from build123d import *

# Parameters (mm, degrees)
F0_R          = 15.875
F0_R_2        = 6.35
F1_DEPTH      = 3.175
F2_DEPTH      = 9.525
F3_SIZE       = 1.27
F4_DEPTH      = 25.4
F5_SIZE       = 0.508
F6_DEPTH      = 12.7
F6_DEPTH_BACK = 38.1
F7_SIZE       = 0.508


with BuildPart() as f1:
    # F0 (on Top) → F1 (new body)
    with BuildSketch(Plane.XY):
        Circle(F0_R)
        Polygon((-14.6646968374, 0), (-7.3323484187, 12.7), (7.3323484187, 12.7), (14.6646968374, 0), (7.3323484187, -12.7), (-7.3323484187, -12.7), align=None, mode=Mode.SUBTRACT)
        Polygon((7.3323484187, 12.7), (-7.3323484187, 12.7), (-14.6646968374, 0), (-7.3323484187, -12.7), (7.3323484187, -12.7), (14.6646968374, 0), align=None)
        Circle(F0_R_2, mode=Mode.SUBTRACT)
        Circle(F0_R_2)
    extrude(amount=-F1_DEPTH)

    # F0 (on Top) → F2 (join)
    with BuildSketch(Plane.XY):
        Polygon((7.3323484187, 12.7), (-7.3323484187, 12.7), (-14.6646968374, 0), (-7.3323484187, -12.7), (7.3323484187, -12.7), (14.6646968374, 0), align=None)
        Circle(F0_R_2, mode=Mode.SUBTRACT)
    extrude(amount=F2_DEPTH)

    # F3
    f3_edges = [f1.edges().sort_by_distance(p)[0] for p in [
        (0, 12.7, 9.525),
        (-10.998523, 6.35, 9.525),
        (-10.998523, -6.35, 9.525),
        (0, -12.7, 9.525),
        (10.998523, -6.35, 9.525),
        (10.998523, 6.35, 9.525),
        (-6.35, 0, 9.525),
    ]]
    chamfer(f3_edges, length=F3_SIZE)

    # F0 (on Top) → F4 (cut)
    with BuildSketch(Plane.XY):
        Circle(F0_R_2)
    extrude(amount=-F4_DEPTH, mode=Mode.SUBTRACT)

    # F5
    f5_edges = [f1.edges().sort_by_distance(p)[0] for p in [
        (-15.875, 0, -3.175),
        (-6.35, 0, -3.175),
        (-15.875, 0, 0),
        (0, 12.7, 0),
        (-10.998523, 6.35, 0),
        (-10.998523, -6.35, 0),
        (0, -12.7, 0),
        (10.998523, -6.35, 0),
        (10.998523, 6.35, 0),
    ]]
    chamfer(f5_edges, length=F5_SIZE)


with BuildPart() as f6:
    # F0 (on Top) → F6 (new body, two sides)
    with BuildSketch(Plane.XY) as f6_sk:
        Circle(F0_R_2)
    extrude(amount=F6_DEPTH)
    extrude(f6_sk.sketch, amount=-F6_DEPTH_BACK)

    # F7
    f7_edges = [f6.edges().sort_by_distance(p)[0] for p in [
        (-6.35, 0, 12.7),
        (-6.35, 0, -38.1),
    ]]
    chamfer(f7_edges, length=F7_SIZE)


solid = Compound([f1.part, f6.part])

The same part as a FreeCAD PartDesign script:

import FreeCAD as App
import Part
import Sketcher
Q = App.Units.Quantity


def edges_at(feature, points):
    """Names of the edges that pass closest to the given points."""
    edges = feature.Shape.Edges
    near = lambda p: min(range(len(edges)), key=lambda i: edges[i].distToShape(Part.Vertex(*p))[0])
    return sorted({f"Edge{near(p) + 1}" for p in points})

doc = App.newDocument("Part")
body = doc.addObject("PartDesign::Body", "Body")

sketch1 = body.newObject("Sketcher::SketchObject", "Sketch")
sketch1.AttachmentSupport = (doc.getObject("XY_Plane"), [""])
sketch1.MapMode = "FlatFace"
sketch1.addGeometry(Part.Circle(App.Vector(0, 0, 0), App.Vector(0, 0, 1), 16), False)
sketch1.addConstraint([
    Sketcher.Constraint("Coincident", 0, 3, -1, 1),
    Sketcher.Constraint("Diameter", 0, Q("1.25 in")),
])
pad1 = body.newObject("PartDesign::Pad", "Pad")
pad1.Profile = sketch1
pad1.Length = Q("0.125 in")
pad1.Reversed = True

sketch2 = body.newObject("Sketcher::SketchObject", "Sketch001")
sketch2.AttachmentSupport = (doc.getObject("XY_Plane"), [""])
sketch2.MapMode = "FlatFace"
sketch2.addGeometry([
    Part.LineSegment(App.Vector(7, 13, 0), App.Vector(-7, 13, 0)),
    Part.LineSegment(App.Vector(-7, 13, 0), App.Vector(-15, 0, 0)),
    Part.LineSegment(App.Vector(-15, 0, 0), App.Vector(-7, -13, 0)),
    Part.LineSegment(App.Vector(-7, -13, 0), App.Vector(7, -13, 0)),
    Part.LineSegment(App.Vector(7, -13, 0), App.Vector(15, 0, 0)),
    Part.LineSegment(App.Vector(15, 0, 0), App.Vector(7, 13, 0)),
    Part.Circle(App.Vector(0, 0, 0), App.Vector(0, 0, 1), 6),
], False)
sketch2.addConstraint([
    Sketcher.Constraint("Coincident", 0, 2, 1, 1),
    Sketcher.Constraint("Coincident", 1, 2, 2, 1),
    Sketcher.Constraint("Coincident", 2, 2, 3, 1),
    Sketcher.Constraint("Coincident", 3, 2, 4, 1),
    Sketcher.Constraint("Coincident", 4, 2, 5, 1),
    Sketcher.Constraint("Coincident", 5, 2, 0, 1),
    Sketcher.Constraint("Horizontal", 0),
    Sketcher.Constraint("Horizontal", 3),
    Sketcher.Constraint("Coincident", 6, 3, -1, 1),
    Sketcher.Constraint("Symmetric", 0, 2, 3, 2, -1, 1),
    Sketcher.Constraint("Symmetric", 1, 2, 4, 2, -1, 1),
    Sketcher.Constraint("PointOnObject", 1, 2, -1),
    Sketcher.Constraint("Parallel", 2, 5),
    Sketcher.Constraint("Vertical", 0, 2, 2, 2),
    Sketcher.Constraint("Diameter", 6, Q("0.5 in")),
    Sketcher.Constraint("Angle", 1, Q("-120 deg")),
    Sketcher.Constraint("DistanceY", 2, 2, 0, 2, Q("1 in")),
    Sketcher.Constraint("DistanceX", 0, 2, 0, 1, Q("14.664697 mm")),
])
pad2 = body.newObject("PartDesign::Pad", "Pad001")
pad2.Profile = sketch2
pad2.Length = Q("0.375 in")
doc.recompute()

chamfer = body.newObject("PartDesign::Chamfer", "Chamfer")
chamfer.Base = (pad2, edges_at(pad2, [
    (0, 12.7, 9.525),
    (-10.999, 6.35, 9.525),
    (-10.999, -6.35, 9.525),
    (0, -12.7, 9.525),
    (10.999, -6.35, 9.525),
    (10.999, 6.35, 9.525),
    (-6.35, 0, 9.525),
]))
chamfer.Size = Q("0.05 in")

sketch3 = body.newObject("Sketcher::SketchObject", "Sketch002")
sketch3.AttachmentSupport = (doc.getObject("XY_Plane"), [""])
sketch3.MapMode = "FlatFace"
sketch3.addGeometry(Part.Circle(App.Vector(0, 0, 0), App.Vector(0, 0, 1), 6), False)
sketch3.addConstraint([
    Sketcher.Constraint("Coincident", 0, 3, -1, 1),
    Sketcher.Constraint("Diameter", 0, Q("0.5 in")),
])
pocket1 = body.newObject("PartDesign::Pocket", "Pocket")
pocket1.Profile = sketch3
pocket1.Length = Q("1 in")
doc.recompute()

chamfer2 = body.newObject("PartDesign::Chamfer", "Chamfer001")
chamfer2.Base = (pocket1, edges_at(pocket1, [
    (-15.875, 0, -3.175),
    (-6.35, 0, -3.175),
    (-15.875, 0, 0),
    (0, 12.7, 0),
    (-10.999, 6.35, 0),
    (-10.999, -6.35, 0),
    (0, -12.7, 0),
    (10.999, -6.35, 0),
    (10.999, 6.35, 0),
]))
chamfer2.Size = Q("0.02 in")
body2 = doc.addObject("PartDesign::Body", "Body001")

sketch4 = body2.newObject("Sketcher::SketchObject", "Sketch003")
sketch4.AttachmentSupport = (doc.getObject("XY_Plane001"), [""])
sketch4.MapMode = "FlatFace"
sketch4.addGeometry(Part.Circle(App.Vector(0, 0, 0), App.Vector(0, 0, 1), 6), False)
sketch4.addConstraint([
    Sketcher.Constraint("Coincident", 0, 3, -1, 1),
    Sketcher.Constraint("Diameter", 0, Q("0.5 in")),
])
pad3 = body2.newObject("PartDesign::Pad", "Pad002")
pad3.Profile = sketch4
pad3.Type = "TwoLengths"
pad3.Length = Q("0.5 in")
pad3.Length2 = Q("1.5 in")
doc.recompute()

chamfer3 = body2.newObject("PartDesign::Chamfer", "Chamfer002")
chamfer3.Base = (pad3, edges_at(pad3, [(-6.35, 0, 12.7), (-6.35, 0, -38.1)]))
chamfer3.Size = Q("0.02 in")

doc.recompute()
